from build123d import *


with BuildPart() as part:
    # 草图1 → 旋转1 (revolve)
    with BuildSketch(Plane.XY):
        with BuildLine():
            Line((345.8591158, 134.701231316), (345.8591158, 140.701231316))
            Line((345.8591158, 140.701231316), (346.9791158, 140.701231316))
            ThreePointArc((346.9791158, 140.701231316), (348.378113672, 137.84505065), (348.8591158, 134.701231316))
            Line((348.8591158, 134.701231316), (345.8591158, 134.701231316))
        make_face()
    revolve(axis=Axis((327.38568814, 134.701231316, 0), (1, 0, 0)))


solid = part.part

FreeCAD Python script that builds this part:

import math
import FreeCAD as App
import Part
import Sketcher

doc = App.newDocument("Part")
body = doc.addObject("PartDesign::Body", "Body")

sketch1 = body.newObject("Sketcher::SketchObject", "Sketch")
sketch1.AttachmentSupport = (doc.getObject("XY_Plane"), [""])
sketch1.MapMode = "FlatFace"
sketch1.addGeometry([
    Part.LineSegment(App.Vector(345.859116, 140.701231, 0), App.Vector(345.859116, 134.701231, 0)),
    Part.LineSegment(App.Vector(345.859116, 134.701231, 0), App.Vector(348.859116, 134.701231, 0)),
    Part.ArcOfCircle(Part.Circle(App.Vector(338.344648, 134.701231, 0), App.Vector(0, 0, 1), 10.514468), math.radians(0), math.radians(34.795026)),
    Part.LineSegment(App.Vector(346.979116, 140.701231, 0), App.Vector(345.859116, 140.701231, 0)),
], False)
sketch1.addGeometry(Part.LineSegment(App.Vector(338.344648, 134.701231, 0), App.Vector(348.859116, 134.701231, 0)), True)
sketch1.addConstraint([
    Sketcher.Constraint("Coincident", 0, 2, 1, 1),
    Sketcher.Constraint("Coincident", 1, 2, 2, 1),
    Sketcher.Constraint("Coincident", 2, 2, 3, 1),
    Sketcher.Constraint("Coincident", 3, 2, 0, 1),
    Sketcher.Constraint("Vertical", 0),
    Sketcher.Constraint("Horizontal", 1),
    Sketcher.Constraint("Horizontal", 3),
    Sketcher.Constraint("Horizontal", 4),
    Sketcher.Constraint("Coincident", 4, 1, 2, 3),
    Sketcher.Constraint("Coincident", 4, 2, 1, 2),
    Sketcher.Constraint("DistanceX", 1, 1, 1, 2, 3.0),
    Sketcher.Constraint("DistanceY", 0, 2, 0, 1, 6.0),
    Sketcher.Constraint("DistanceX", 3, 2, 3, 1, 1.12),
    Sketcher.Constraint("DistanceY", -1, 1, 2, 3, 134.701231),
    Sketcher.Constraint("DistanceX", -1, 1, 2, 3, 338.344648),
])
revolution = body.newObject("PartDesign::Revolution", "Revolution")
revolution.Profile = sketch1
revolution.ReferenceAxis = (sketch1, ["Axis0"])
revolution.Angle = 360

doc.recompute()
